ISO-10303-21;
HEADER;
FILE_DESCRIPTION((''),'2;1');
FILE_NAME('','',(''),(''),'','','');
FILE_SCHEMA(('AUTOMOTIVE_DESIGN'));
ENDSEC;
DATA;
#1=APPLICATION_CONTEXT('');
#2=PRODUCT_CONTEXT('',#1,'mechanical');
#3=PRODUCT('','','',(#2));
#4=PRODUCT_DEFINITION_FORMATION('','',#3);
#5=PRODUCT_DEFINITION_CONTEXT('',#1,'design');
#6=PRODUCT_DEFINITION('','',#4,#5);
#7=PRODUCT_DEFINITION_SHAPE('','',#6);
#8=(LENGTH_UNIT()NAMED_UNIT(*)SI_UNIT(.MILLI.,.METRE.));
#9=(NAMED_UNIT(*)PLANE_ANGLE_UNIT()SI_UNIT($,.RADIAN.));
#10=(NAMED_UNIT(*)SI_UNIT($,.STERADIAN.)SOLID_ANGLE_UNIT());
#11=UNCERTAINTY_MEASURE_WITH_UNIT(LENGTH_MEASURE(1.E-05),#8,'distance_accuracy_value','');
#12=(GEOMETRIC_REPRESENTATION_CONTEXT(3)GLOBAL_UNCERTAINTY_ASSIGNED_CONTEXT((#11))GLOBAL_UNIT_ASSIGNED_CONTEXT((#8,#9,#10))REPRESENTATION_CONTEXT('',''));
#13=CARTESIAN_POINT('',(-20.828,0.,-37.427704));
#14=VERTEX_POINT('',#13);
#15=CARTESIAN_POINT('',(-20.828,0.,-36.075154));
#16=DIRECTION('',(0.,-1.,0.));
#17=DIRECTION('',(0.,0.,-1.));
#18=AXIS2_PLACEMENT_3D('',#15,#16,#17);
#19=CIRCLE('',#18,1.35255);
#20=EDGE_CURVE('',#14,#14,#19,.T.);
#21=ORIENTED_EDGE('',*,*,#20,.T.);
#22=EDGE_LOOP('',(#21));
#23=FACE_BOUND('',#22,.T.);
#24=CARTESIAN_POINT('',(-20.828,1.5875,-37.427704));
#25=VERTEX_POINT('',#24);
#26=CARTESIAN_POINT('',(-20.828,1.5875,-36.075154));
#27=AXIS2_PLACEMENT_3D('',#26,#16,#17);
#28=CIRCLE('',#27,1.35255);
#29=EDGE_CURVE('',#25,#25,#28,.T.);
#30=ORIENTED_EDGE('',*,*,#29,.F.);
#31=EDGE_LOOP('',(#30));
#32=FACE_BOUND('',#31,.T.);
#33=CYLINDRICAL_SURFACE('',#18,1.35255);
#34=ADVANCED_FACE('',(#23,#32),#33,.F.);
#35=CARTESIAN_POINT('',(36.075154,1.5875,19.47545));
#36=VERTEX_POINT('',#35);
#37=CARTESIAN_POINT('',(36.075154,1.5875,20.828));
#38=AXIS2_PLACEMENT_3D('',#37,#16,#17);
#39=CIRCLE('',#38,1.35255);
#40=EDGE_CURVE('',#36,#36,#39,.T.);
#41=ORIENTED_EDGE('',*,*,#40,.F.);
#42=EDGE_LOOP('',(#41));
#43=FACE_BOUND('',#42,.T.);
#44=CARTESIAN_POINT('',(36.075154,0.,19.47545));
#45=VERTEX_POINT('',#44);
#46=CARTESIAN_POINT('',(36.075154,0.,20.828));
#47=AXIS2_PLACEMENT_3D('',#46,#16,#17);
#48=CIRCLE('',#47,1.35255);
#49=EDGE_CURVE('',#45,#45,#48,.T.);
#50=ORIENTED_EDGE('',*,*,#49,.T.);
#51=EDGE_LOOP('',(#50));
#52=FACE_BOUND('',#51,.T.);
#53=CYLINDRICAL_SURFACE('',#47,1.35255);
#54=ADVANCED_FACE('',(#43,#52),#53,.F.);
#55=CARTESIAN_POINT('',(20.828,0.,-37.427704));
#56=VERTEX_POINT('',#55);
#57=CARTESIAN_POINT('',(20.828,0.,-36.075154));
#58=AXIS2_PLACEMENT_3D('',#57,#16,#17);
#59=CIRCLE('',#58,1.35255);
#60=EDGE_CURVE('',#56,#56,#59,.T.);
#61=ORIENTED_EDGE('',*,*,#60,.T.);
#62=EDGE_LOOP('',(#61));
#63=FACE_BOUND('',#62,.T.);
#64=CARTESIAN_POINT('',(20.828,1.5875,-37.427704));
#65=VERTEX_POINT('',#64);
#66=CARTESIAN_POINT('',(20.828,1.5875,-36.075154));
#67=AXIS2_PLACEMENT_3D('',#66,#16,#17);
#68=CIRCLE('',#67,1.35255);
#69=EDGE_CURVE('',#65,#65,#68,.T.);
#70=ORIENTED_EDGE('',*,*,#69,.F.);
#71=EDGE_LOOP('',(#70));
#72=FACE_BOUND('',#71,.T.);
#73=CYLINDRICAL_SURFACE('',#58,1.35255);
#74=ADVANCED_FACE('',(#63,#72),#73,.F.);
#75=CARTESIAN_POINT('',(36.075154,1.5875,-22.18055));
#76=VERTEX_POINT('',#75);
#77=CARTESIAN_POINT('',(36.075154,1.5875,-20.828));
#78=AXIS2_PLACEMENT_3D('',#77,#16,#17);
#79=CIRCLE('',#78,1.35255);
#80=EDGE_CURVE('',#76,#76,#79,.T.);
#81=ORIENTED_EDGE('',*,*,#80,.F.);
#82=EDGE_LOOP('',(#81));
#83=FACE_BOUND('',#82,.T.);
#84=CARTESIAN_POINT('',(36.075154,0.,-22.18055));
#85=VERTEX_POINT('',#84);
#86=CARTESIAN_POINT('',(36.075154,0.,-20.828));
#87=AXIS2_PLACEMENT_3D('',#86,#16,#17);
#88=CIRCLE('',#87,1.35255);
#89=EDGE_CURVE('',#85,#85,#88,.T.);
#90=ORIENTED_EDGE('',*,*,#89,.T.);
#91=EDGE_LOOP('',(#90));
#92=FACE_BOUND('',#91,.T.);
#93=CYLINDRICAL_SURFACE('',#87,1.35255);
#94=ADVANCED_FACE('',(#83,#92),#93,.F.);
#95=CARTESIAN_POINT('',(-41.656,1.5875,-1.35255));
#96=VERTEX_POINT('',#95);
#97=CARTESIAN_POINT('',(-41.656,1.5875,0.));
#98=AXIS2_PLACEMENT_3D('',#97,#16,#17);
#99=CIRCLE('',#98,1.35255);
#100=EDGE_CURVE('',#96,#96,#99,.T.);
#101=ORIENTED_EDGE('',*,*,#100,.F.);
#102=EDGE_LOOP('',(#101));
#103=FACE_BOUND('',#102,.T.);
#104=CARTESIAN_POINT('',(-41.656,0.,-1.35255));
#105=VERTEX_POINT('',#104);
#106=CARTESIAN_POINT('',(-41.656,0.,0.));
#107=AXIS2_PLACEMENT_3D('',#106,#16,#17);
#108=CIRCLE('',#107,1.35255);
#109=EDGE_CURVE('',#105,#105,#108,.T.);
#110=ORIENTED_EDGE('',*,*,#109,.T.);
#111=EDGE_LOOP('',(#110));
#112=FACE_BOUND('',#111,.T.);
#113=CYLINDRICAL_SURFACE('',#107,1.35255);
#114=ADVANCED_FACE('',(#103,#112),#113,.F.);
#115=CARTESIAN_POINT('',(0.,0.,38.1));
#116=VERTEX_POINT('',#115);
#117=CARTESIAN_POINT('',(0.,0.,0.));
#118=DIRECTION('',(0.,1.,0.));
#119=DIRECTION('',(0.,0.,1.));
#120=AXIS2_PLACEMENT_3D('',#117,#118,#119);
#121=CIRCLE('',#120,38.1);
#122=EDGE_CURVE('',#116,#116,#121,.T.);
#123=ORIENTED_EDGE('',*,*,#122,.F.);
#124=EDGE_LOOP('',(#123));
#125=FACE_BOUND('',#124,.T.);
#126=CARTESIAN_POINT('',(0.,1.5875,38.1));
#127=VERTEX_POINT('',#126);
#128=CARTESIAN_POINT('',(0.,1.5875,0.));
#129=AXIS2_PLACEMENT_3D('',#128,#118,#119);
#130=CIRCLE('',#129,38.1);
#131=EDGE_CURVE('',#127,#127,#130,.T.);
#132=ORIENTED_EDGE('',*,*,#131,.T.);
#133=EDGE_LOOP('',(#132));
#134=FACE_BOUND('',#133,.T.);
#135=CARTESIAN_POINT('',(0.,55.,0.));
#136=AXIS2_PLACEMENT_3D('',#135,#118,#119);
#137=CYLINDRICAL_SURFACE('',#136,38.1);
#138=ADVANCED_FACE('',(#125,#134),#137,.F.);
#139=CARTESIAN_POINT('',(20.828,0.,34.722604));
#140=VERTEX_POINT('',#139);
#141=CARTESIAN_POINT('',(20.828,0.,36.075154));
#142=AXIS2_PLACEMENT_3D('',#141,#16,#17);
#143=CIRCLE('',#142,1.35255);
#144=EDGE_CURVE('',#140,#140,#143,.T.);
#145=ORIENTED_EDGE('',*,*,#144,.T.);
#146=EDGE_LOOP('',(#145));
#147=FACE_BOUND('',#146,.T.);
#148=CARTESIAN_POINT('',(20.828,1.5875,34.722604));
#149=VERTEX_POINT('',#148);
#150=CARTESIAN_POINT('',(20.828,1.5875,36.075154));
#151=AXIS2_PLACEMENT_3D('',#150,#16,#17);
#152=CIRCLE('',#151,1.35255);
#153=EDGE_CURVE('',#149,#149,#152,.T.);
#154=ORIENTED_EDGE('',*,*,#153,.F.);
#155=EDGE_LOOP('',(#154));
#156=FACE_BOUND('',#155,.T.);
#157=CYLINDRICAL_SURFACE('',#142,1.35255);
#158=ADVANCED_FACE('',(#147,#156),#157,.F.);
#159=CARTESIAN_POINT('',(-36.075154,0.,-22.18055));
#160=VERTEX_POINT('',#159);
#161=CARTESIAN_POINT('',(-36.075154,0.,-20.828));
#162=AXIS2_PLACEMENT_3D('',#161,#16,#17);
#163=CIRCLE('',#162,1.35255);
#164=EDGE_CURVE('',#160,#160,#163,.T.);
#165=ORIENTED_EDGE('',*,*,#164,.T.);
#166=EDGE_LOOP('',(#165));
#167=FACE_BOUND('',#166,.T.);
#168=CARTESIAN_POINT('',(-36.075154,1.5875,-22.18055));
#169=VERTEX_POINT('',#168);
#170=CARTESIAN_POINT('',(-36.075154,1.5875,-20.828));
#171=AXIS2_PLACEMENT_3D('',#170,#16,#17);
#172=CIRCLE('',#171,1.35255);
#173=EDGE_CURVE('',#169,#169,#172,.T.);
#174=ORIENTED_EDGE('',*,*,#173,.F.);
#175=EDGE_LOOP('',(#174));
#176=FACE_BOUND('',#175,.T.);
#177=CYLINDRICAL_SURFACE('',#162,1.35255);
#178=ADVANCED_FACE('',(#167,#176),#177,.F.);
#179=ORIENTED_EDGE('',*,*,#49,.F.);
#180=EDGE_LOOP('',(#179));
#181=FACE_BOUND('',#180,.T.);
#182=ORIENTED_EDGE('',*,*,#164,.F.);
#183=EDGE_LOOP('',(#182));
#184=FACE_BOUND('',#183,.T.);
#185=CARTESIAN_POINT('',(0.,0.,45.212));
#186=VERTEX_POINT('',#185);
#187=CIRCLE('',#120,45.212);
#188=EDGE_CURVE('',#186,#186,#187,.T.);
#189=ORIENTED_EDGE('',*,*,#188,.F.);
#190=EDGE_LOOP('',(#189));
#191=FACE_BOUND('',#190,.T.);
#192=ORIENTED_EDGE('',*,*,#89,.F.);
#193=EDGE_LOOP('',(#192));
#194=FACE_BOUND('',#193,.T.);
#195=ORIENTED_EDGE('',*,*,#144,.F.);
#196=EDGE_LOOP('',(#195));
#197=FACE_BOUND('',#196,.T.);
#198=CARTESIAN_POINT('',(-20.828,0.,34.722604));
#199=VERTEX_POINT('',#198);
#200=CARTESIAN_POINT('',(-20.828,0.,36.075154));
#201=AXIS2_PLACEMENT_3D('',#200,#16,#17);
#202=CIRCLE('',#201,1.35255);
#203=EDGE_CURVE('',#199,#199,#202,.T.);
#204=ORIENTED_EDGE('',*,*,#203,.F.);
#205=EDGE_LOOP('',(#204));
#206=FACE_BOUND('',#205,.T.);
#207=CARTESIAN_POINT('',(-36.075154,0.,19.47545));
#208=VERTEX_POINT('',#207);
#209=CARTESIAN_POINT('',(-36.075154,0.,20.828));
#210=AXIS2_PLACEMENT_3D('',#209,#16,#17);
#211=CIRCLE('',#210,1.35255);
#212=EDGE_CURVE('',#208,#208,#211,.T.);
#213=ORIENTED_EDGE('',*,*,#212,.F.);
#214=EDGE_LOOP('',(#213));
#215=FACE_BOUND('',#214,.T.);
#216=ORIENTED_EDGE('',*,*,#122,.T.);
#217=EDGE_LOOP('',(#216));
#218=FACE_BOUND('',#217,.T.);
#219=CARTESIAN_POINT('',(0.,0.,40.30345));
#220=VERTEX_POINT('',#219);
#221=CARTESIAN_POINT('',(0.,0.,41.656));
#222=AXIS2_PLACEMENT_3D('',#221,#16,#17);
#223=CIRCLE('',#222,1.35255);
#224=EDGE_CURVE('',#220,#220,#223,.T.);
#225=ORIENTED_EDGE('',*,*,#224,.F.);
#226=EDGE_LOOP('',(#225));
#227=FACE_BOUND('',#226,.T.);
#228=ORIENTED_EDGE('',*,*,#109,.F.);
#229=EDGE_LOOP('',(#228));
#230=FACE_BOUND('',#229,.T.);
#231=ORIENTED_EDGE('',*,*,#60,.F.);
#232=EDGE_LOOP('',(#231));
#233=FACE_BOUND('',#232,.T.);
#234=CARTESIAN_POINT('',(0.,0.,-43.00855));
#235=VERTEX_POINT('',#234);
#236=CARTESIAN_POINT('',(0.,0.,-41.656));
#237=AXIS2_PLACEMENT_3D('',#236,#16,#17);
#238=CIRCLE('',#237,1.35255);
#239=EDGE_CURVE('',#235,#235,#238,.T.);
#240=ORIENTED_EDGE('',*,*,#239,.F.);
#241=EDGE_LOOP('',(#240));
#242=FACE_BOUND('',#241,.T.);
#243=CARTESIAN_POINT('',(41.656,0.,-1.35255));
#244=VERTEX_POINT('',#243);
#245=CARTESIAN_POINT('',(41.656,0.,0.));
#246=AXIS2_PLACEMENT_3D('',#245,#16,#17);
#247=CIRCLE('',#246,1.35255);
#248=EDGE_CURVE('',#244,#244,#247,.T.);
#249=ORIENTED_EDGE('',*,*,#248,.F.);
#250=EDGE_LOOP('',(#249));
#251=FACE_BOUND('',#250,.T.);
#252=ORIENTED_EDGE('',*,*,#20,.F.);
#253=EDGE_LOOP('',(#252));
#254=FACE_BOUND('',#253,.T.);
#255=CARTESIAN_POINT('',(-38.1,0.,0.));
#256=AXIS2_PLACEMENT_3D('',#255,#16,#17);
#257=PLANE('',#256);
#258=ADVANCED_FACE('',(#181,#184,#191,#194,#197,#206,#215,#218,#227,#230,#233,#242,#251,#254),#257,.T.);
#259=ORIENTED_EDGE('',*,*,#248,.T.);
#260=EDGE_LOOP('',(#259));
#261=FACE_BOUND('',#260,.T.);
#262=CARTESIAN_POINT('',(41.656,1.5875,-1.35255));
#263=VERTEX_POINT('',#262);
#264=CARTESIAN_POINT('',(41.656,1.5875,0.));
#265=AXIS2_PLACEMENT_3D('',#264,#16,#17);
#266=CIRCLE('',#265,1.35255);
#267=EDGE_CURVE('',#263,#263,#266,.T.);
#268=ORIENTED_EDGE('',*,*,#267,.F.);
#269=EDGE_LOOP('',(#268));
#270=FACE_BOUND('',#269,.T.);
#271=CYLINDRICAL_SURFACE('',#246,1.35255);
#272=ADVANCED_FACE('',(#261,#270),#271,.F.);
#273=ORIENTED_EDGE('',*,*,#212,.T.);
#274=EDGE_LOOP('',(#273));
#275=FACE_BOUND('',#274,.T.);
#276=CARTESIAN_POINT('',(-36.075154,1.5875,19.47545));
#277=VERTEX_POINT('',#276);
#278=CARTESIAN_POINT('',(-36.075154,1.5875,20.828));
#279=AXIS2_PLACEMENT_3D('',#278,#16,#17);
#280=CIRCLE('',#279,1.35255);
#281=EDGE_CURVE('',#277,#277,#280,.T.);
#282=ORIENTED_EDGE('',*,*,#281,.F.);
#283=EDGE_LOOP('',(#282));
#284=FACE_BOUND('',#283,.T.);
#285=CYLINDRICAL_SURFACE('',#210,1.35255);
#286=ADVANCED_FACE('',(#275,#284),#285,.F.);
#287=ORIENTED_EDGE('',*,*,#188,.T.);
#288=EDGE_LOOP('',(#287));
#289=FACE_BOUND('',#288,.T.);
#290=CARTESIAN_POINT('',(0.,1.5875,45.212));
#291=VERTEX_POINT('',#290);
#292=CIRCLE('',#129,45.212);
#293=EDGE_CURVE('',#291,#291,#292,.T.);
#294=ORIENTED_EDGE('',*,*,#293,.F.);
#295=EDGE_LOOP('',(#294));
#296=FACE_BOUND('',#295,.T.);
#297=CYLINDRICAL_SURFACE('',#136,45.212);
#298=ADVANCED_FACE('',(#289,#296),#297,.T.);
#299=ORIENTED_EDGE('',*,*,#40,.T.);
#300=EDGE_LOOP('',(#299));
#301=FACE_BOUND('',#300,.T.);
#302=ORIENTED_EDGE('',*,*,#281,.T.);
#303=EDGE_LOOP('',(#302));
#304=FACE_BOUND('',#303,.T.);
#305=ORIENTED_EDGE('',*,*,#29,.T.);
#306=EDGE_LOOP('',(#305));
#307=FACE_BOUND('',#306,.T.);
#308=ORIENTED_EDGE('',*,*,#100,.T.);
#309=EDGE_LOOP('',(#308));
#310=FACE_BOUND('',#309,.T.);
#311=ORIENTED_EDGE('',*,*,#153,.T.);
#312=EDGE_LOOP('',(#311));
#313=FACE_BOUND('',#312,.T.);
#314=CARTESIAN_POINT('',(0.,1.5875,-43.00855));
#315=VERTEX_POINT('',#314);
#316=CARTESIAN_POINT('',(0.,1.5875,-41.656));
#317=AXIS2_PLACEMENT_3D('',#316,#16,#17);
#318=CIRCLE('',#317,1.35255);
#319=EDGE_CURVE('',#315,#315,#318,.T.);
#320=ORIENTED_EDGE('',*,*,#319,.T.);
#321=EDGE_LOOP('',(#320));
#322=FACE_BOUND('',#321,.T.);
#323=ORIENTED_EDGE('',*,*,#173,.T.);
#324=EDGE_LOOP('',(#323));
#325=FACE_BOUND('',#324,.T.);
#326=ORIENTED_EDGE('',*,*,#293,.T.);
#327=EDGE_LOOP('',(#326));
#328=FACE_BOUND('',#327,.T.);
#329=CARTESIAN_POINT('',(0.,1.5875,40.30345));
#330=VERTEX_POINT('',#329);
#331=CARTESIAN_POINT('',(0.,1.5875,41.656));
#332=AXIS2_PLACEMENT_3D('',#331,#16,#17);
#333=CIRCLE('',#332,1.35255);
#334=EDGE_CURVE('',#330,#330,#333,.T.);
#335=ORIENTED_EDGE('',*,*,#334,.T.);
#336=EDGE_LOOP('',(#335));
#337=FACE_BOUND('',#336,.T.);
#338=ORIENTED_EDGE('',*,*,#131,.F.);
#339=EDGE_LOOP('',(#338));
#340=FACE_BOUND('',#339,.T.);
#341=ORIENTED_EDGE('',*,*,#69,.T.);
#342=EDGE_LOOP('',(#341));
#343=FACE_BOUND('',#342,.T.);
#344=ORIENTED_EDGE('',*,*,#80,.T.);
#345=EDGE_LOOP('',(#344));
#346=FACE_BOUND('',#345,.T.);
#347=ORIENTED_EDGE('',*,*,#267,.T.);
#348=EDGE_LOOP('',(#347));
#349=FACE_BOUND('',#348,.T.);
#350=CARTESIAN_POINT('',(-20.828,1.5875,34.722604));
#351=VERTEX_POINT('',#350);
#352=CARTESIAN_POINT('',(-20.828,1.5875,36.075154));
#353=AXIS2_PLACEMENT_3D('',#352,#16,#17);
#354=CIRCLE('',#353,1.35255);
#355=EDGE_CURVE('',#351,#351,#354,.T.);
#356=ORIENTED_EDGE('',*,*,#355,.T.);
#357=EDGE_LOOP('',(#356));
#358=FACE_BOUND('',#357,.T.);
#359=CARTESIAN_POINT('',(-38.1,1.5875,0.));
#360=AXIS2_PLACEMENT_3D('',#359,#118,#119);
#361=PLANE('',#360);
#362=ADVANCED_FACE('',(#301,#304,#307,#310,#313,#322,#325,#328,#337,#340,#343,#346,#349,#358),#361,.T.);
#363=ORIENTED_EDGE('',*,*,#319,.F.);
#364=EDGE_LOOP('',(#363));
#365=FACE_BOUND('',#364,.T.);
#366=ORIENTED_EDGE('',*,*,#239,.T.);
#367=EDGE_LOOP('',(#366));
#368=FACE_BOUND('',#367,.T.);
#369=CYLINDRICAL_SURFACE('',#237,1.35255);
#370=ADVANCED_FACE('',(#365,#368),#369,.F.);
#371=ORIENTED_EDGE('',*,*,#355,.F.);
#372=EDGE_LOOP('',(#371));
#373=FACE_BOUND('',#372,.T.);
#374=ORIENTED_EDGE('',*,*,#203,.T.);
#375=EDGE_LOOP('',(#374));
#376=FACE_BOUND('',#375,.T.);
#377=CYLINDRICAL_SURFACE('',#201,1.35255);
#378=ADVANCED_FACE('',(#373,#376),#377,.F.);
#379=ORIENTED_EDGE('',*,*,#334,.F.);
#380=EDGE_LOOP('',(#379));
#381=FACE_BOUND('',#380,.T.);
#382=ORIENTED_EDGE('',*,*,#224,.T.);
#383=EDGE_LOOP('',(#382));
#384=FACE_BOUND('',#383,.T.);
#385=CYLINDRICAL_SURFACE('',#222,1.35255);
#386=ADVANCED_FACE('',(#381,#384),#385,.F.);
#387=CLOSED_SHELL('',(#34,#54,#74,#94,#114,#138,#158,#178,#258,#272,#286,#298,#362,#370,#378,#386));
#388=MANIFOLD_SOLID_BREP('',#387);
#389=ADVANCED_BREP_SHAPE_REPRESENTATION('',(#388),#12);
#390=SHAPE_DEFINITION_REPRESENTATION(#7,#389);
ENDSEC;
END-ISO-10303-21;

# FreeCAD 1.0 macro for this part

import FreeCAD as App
import Part
import Sketcher
from FreeCAD import Vector
Q = App.Units.Quantity


def add_polygon(sketch, points):
    """Adds a closed chain of lines whose ends are joined by coincident constraints."""
    first, n = sketch.GeometryCount, len(points)
    for a, b in zip(points, points[1:] + points[:1]):
        sketch.addGeometry(Part.LineSegment(App.Vector(*a, 0), App.Vector(*b, 0)), False)
    for i in range(n):
        sketch.addConstraint(Sketcher.Constraint("Coincident", first + i, 2, first + (i + 1) % n, 1))

doc = App.newDocument("Part")
body = doc.addObject("PartDesign::Body", "Body")

# Sketch on XY plane
sketch1 = body.newObject("Sketcher::SketchObject", "Sketch")
sketch1.AttachmentSupport = (doc.getObject("XY_Plane"), [""])
sketch1.MapMode = "FlatFace"
add_polygon(sketch1, [(-45.2, 1.6), (-45.2, 0), (-38.1, 0), (-38.1, 1.6)])  # lines 0-3
sketch1.addConstraint(Sketcher.Constraint("Vertical", 0))
sketch1.addConstraint(Sketcher.Constraint("Horizontal", 1))
sketch1.addConstraint(Sketcher.Constraint("Vertical", 2))
sketch1.addConstraint(Sketcher.Constraint("Horizontal", 3))
sketch1.addConstraint(Sketcher.Constraint("PointOnObject", 0, 2, -1))
sketch1.addConstraint(Sketcher.Constraint("DistanceX", 1, 1, 1, 2, Q("0.28 in")))
sketch1.addConstraint(Sketcher.Constraint("DistanceX", 1, 2, -1, 1, Q("1.5 in")))
sketch1.addConstraint(Sketcher.Constraint("DistanceY", 0, 2, 0, 1, Q("0.0625 in")))
revolution = body.newObject("PartDesign::Revolution", "Revolution")
revolution.Profile = sketch1
revolution.ReferenceAxis = (sketch1, ["V_Axis"])
revolution.Angle = 360

# Sketch on XZ plane
sketch2 = body.newObject("Sketcher::SketchObject", "Sketch001")
sketch2.AttachmentSupport = (doc.getObject("XZ_Plane"), [""])
sketch2.MapMode = "FlatFace"
sketch2.addGeometry(Part.Circle(Vector(-41.7, 0, 0), Vector(0, 0, 1), 1.4), False)
sketch2.addConstraint(Sketcher.Constraint("PointOnObject", 0, 3, -1))
sketch2.addConstraint(Sketcher.Constraint("Diameter", 0, Q("0.1065 in")))
sketch2.addConstraint(Sketcher.Constraint("DistanceX", 0, 3, -1, 1, Q("1.64 in")))
doc.recompute()
hole = body.newObject("PartDesign::Hole", "Hole")
hole.Profile = sketch2
hole.ThreadType = "None"
hole.Diameter = Q("0.1065 in")
hole.DepthType = "ThroughAll"
doc.recompute()

polarpattern = body.newObject("PartDesign::PolarPattern", "PolarPattern")
polarpattern.Originals = [hole]
polarpattern.Axis = (doc.getObject("Y_Axis"), [""])
polarpattern.Angle = 360
polarpattern.Occurrences = 12
body.Tip = polarpattern

doc.recompute()
